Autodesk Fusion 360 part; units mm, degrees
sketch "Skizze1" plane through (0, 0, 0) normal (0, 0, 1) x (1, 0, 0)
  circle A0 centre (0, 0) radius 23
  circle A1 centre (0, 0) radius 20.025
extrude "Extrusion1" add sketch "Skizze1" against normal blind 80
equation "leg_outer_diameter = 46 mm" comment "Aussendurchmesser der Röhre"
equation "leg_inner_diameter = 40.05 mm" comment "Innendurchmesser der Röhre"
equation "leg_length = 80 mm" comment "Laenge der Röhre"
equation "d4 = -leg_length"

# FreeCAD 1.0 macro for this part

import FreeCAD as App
import Part
import Sketcher

V = App.Vector

doc = App.newDocument("Part")
body = doc.addObject("PartDesign::Body", "Body")

sketch1 = doc.addObject("Sketcher::SketchObject", "Sketch")
body.addObject(sketch1)
sketch1.AttachmentSupport = (doc.XY_Plane, [""])
sketch1.MapMode = "FlatFace"
sketch1.addGeometry([
    Part.Circle(V(0, 0, 0), V(0, 0, 1), 23),
    Part.Circle(V(0, 0, 0), V(0, 0, 1), 20),
], False)
sketch1.addConstraint([
    Sketcher.Constraint("Coincident", 0, 3, -1, 1),
    Sketcher.Constraint("Coincident", 1, 3, -1, 1),
    Sketcher.Constraint("Diameter", 0, 46.0),
    Sketcher.Constraint("Diameter", 1, 40.05),
])
pad1 = doc.addObject("PartDesign::Pad", "Pad")
body.addObject(pad1)
pad1.Profile = sketch1
pad1.Length = 80
pad1.Reversed = True

doc.recompute()
